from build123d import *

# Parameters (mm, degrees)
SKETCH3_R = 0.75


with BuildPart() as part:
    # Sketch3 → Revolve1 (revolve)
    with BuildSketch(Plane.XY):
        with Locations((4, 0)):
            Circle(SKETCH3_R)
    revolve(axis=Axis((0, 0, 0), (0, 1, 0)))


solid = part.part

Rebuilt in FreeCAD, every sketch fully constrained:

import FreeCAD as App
import Part
import Sketcher

V = App.Vector

doc = App.newDocument("Part")
body = doc.addObject("PartDesign::Body", "Body")

sketch1 = body.newObject("Sketcher::SketchObject", "Sketch")
sketch1.AttachmentSupport = (doc.getObject("XY_Plane"), [""])
sketch1.MapMode = "FlatFace"
sketch1.addGeometry(Part.Circle(V(4, 0, 0), V(0, 0, 1), 0.8), False)
sketch1.addConstraint(Sketcher.Constraint("PointOnObject", 0, 3, -1))
sketch1.addConstraint(Sketcher.Constraint("Diameter", 0, 1.5))
sketch1.addConstraint(Sketcher.Constraint("DistanceX", -1, 1, 0, 3, 4.0))
revolution = body.newObject("PartDesign::Revolution", "Revolution")
revolution.Profile = sketch1
revolution.ReferenceAxis = (sketch1, ["V_Axis"])
revolution.Angle = 360

doc.recompute()
